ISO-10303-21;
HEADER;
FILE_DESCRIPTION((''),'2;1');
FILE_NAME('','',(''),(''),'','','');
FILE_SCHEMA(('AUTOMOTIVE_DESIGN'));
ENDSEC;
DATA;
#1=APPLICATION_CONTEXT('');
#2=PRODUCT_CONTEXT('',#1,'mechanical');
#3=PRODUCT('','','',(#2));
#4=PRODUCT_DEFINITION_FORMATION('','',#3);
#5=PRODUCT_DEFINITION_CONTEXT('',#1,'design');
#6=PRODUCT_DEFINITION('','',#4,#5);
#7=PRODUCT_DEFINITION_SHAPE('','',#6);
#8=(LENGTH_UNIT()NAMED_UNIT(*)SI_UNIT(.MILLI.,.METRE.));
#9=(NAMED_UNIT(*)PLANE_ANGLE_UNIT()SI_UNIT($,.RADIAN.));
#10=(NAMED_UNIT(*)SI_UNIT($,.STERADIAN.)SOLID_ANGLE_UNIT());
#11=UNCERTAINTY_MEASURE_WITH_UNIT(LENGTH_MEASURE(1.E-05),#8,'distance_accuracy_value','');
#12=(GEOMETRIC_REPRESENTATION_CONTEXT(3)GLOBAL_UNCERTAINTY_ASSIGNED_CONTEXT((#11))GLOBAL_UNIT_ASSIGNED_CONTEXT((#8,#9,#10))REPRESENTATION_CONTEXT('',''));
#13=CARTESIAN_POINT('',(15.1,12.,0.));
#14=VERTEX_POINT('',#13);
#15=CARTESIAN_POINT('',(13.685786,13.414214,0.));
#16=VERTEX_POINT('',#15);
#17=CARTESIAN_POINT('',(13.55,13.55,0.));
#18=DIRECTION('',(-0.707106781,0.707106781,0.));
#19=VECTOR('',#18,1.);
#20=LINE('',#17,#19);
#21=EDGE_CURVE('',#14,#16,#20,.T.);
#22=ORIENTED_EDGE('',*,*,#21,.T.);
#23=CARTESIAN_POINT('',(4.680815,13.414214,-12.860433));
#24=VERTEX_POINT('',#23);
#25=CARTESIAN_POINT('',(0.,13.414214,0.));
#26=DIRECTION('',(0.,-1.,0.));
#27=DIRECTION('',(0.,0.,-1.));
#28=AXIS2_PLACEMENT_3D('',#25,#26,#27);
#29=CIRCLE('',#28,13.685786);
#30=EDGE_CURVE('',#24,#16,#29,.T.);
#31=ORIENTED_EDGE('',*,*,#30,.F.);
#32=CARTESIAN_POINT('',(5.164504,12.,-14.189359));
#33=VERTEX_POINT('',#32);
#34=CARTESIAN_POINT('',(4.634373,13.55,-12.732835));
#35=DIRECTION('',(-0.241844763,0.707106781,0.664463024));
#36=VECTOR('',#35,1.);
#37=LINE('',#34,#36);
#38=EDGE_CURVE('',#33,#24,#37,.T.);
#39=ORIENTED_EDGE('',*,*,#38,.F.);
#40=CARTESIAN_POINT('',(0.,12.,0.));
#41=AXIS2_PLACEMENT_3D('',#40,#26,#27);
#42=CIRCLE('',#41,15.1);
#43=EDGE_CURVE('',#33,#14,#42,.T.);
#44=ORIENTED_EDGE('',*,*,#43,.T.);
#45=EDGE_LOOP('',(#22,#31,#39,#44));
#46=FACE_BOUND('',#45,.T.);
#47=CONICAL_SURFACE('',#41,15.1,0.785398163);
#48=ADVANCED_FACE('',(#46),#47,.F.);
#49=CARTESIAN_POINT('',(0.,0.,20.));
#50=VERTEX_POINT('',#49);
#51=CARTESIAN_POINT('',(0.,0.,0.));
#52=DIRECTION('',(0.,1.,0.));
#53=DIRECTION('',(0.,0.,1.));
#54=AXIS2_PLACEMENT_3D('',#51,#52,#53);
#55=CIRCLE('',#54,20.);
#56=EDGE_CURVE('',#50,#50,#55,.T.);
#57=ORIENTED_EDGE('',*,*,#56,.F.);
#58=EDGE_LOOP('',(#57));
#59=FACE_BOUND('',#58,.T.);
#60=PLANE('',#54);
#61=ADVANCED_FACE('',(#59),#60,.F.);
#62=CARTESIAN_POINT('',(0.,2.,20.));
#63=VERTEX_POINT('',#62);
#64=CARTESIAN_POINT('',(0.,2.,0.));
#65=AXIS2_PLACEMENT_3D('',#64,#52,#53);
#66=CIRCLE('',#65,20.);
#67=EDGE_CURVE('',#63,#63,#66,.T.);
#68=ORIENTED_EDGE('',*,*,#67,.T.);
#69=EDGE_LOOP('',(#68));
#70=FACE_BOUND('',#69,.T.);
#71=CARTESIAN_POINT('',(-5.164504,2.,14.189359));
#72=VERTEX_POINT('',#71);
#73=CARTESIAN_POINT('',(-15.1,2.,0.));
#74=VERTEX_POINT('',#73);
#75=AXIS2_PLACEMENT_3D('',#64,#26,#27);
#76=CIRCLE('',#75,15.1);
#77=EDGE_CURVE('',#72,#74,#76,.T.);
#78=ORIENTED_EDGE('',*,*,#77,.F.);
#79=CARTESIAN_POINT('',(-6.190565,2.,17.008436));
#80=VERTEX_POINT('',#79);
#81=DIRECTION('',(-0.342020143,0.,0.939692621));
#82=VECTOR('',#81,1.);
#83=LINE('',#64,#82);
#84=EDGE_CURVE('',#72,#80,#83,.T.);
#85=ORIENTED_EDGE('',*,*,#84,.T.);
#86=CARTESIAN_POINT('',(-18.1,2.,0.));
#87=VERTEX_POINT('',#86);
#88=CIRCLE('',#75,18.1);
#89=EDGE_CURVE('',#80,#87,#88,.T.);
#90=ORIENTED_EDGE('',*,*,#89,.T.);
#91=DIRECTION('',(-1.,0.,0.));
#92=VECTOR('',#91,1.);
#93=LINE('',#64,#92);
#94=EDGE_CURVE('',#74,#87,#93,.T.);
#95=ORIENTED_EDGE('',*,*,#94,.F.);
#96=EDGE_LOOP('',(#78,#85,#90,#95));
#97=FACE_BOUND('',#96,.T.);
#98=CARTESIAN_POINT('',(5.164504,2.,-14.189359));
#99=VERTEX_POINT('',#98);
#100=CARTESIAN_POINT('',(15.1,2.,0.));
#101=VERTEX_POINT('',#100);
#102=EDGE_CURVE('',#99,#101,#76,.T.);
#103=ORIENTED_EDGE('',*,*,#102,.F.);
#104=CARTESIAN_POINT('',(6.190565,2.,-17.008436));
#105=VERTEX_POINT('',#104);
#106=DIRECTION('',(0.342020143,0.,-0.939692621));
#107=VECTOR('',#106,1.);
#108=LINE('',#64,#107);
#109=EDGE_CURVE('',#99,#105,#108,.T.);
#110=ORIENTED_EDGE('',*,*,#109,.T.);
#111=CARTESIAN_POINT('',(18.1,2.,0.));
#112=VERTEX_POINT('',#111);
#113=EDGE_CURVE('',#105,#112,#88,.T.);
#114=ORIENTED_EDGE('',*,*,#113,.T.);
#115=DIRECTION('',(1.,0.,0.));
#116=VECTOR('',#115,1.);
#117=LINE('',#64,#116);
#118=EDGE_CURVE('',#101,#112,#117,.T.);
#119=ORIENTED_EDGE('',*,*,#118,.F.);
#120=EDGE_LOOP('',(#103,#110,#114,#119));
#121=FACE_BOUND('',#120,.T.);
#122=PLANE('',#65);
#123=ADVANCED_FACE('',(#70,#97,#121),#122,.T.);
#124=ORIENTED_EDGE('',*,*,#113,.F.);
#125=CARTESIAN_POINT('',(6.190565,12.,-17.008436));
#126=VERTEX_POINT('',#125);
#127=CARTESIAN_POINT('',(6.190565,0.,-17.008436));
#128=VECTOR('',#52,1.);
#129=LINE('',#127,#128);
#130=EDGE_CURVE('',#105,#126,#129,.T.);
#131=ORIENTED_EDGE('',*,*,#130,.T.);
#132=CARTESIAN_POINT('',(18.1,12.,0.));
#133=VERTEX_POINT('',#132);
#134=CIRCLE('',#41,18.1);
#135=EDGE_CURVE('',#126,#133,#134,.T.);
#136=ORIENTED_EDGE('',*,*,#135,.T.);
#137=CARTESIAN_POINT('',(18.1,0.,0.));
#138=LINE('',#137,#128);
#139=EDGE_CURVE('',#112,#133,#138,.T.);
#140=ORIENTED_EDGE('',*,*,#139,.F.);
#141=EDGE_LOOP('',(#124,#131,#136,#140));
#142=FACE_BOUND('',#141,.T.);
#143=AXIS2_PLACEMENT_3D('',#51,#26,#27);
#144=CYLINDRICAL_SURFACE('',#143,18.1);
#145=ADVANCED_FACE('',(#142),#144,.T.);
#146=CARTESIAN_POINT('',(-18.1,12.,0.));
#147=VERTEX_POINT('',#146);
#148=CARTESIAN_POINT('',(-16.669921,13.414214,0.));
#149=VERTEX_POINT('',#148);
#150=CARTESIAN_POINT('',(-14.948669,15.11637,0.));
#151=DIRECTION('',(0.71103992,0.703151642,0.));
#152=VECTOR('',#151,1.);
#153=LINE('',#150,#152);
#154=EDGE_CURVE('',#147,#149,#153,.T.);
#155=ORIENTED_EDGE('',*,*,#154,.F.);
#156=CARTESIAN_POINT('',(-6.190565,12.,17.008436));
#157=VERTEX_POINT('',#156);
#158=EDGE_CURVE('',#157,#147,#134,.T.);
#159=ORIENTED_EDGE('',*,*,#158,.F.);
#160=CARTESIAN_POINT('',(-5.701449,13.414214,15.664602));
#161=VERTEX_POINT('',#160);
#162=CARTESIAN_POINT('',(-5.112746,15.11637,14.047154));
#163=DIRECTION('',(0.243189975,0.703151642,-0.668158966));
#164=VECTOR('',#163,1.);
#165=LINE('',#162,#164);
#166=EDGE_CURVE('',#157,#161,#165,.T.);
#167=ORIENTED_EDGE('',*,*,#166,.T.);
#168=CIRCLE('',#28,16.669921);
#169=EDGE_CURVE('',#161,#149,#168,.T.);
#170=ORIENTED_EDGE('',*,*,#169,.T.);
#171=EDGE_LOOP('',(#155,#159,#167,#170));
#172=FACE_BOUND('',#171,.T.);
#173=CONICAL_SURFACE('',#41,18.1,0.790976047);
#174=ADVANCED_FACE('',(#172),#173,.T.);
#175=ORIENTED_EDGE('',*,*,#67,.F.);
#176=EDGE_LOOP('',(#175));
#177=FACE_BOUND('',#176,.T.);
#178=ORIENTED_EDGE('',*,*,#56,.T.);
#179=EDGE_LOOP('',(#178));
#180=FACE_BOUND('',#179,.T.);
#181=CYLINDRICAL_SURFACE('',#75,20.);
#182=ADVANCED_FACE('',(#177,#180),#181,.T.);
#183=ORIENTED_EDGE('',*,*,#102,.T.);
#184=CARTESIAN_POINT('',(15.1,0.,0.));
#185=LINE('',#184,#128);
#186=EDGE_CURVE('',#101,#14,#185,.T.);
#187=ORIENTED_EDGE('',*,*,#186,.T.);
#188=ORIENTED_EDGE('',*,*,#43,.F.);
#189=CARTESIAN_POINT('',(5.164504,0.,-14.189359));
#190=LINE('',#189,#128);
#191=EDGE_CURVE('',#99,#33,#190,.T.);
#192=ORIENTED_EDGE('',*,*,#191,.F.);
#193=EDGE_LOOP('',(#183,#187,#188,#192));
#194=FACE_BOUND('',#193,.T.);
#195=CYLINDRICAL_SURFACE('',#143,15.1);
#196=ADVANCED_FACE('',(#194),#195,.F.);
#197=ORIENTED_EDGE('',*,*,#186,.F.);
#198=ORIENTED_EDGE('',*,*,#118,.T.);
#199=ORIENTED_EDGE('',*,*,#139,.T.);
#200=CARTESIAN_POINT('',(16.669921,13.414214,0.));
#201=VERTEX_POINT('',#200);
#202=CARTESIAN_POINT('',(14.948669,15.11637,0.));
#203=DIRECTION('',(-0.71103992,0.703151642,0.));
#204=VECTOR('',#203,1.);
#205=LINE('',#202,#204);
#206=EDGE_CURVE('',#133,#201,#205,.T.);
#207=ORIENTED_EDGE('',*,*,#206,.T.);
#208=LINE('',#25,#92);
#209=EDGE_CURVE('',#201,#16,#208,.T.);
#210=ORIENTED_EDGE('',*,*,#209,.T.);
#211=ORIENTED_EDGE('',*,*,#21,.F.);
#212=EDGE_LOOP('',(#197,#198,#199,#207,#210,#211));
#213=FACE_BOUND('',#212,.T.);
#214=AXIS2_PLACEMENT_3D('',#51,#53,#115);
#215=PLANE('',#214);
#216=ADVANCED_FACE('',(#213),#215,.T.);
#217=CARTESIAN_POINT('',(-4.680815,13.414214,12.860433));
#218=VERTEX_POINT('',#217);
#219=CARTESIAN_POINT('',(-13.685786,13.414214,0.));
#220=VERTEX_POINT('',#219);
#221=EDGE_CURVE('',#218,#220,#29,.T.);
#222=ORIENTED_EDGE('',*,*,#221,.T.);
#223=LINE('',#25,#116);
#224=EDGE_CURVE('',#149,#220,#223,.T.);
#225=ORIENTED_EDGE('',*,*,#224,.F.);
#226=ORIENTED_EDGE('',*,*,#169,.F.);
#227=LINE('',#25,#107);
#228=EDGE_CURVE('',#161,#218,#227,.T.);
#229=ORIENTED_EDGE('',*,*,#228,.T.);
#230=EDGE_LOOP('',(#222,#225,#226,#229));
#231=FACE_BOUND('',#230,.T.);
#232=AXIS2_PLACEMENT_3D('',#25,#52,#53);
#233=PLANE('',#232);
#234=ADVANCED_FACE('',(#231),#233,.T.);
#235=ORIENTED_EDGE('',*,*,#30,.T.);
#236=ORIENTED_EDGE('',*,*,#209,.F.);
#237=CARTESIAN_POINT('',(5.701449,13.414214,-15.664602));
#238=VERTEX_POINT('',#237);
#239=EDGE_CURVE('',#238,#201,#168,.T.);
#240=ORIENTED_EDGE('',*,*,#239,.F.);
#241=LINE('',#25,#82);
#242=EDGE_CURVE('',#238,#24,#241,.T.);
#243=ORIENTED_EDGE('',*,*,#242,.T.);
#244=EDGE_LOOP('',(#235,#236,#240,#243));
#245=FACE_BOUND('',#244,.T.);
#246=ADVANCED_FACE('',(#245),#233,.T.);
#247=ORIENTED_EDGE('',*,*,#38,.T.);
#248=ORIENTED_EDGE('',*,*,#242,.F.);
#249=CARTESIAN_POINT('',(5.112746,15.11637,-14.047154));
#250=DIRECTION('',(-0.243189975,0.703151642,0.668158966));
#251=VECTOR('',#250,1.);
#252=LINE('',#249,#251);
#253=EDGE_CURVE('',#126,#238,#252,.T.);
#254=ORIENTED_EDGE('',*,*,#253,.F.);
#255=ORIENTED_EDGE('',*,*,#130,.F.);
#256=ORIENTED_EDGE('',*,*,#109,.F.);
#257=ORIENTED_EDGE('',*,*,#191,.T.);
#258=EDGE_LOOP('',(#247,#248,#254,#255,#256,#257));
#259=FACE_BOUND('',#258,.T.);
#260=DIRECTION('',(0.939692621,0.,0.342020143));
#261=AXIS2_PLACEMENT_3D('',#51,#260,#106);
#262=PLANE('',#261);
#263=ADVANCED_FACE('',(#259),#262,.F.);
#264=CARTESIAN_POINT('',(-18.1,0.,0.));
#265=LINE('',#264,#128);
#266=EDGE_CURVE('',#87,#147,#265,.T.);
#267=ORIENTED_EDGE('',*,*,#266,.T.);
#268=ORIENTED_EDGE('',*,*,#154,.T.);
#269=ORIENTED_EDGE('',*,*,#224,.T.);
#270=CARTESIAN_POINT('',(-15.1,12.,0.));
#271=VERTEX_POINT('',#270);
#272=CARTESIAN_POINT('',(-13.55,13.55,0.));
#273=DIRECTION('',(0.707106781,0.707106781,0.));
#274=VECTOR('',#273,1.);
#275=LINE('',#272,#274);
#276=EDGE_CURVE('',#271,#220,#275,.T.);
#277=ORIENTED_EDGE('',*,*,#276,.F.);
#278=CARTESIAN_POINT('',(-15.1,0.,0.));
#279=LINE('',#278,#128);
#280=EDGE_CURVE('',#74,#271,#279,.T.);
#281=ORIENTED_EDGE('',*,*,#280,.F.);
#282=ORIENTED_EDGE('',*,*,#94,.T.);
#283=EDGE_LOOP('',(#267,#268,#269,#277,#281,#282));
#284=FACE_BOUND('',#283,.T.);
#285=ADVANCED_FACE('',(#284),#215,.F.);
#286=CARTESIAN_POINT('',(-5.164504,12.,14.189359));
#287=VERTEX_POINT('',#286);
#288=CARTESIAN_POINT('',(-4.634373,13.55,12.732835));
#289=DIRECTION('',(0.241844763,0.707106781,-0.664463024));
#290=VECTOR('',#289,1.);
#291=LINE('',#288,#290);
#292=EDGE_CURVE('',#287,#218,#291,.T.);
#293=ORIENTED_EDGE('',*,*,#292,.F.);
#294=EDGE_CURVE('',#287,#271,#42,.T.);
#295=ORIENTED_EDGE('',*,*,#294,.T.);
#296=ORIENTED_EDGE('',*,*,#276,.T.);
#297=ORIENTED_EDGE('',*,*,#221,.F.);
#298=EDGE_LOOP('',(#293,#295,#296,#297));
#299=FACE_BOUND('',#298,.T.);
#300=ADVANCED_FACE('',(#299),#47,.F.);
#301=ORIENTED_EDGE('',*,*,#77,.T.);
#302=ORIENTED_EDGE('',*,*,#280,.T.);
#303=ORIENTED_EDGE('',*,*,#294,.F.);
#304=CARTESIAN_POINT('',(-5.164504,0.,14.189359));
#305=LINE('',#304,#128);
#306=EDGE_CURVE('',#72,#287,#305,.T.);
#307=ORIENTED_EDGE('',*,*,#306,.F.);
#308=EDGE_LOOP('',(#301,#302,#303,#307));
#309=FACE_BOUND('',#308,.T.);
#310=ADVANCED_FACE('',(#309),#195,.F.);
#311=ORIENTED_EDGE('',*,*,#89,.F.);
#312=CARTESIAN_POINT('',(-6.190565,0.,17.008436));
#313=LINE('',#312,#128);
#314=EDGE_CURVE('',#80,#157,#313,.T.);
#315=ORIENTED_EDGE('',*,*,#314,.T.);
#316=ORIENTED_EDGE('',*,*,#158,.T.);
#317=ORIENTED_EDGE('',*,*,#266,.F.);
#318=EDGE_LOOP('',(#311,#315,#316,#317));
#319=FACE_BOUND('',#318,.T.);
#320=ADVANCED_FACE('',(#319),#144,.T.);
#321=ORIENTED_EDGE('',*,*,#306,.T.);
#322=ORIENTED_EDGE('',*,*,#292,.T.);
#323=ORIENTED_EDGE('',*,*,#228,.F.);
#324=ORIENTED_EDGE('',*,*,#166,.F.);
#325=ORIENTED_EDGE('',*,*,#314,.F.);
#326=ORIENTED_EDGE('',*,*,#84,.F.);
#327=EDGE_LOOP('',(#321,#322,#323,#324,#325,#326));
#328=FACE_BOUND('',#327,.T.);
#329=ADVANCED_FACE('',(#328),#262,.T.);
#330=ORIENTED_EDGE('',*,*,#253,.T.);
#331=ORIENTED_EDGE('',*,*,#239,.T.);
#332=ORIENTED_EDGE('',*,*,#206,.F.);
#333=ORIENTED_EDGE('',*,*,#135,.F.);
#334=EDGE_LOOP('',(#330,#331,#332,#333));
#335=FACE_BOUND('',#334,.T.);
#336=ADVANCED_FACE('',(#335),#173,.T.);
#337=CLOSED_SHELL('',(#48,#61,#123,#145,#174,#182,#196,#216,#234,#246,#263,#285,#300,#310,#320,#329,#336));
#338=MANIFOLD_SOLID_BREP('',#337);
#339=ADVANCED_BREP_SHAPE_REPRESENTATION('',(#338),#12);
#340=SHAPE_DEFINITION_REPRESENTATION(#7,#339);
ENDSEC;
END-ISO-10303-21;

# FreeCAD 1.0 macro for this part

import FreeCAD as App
import Part
import Sketcher

V = App.Vector
Q = App.Units.Quantity

doc = App.newDocument("Part")
body = doc.addObject("PartDesign::Body", "Body")

sketch1 = doc.addObject("Sketcher::SketchObject", "Sketch")
body.addObject(sketch1)
sketch1.AttachmentSupport = (doc.XZ_Plane, [""])
sketch1.MapMode = "FlatFace"
sketch1.addGeometry(Part.Circle(V(0, 0, 0), V(0, 0, 1), 20), False)
sketch1.addConstraint(Sketcher.Constraint("Coincident", 0, 3, -1, 1))
sketch1.addConstraint(Sketcher.Constraint("Diameter", 0, Q("40 mm")))
pad1 = doc.addObject("PartDesign::Pad", "Pad")
body.addObject(pad1)
pad1.Profile = sketch1
pad1.Length = 2
pad1.Reversed = True

sketch2 = doc.addObject("Sketcher::SketchObject", "Sketch001")
body.addObject(sketch2)
sketch2.AttachmentSupport = (doc.XY_Plane, [""])
sketch2.MapMode = "FlatFace"
sketch2.addGeometry(Part.LineSegment(V(18.1, 12, 0), V(16.7, 13.4, 0)), False)
sketch2.addGeometry(Part.LineSegment(V(16.7, 13.4, 0), V(13.7, 13.4, 0)), False)
sketch2.addGeometry(Part.LineSegment(V(13.7, 13.4, 0), V(15.1, 12, 0)), False)
sketch2.addGeometry(Part.LineSegment(V(15.1, 12, 0), V(15.1, 2, 0)), False)
sketch2.addGeometry(Part.LineSegment(V(15.1, 2, 0), V(18.1, 2, 0)), False)
sketch2.addGeometry(Part.LineSegment(V(18.1, 2, 0), V(18.1, 12, 0)), False)
sketch2.addGeometry(Part.LineSegment(V(-15.1, 2, 0), V(-15.1, 12, 0)), False)
sketch2.addGeometry(Part.LineSegment(V(-15.1, 12, 0), V(-13.7, 13.4, 0)), False)
sketch2.addGeometry(Part.LineSegment(V(-13.7, 13.4, 0), V(-16.7, 13.4, 0)), False)
sketch2.addGeometry(Part.LineSegment(V(-16.7, 13.4, 0), V(-18.1, 12, 0)), False)
sketch2.addGeometry(Part.LineSegment(V(-18.1, 12, 0), V(-18.1, 2, 0)), False)
sketch2.addGeometry(Part.LineSegment(V(-18.1, 2, 0), V(-15.1, 2, 0)), False)
sketch2.addConstraint(Sketcher.Constraint("Coincident", 0, 2, 1, 1))
sketch2.addConstraint(Sketcher.Constraint("Coincident", 1, 2, 2, 1))
sketch2.addConstraint(Sketcher.Constraint("Coincident", 2, 2, 3, 1))
sketch2.addConstraint(Sketcher.Constraint("Coincident", 3, 2, 4, 1))
sketch2.addConstraint(Sketcher.Constraint("Coincident", 4, 2, 5, 1))
sketch2.addConstraint(Sketcher.Constraint("Coincident", 5, 2, 0, 1))
sketch2.addConstraint(Sketcher.Constraint("Coincident", 6, 2, 7, 1))
sketch2.addConstraint(Sketcher.Constraint("Coincident", 7, 2, 8, 1))
sketch2.addConstraint(Sketcher.Constraint("Coincident", 8, 2, 9, 1))
sketch2.addConstraint(Sketcher.Constraint("Coincident", 9, 2, 10, 1))
sketch2.addConstraint(Sketcher.Constraint("Coincident", 10, 2, 11, 1))
sketch2.addConstraint(Sketcher.Constraint("Coincident", 11, 2, 6, 1))
sketch2.addConstraint(Sketcher.Constraint("Horizontal", 1))
sketch2.addConstraint(Sketcher.Constraint("Vertical", 3))
sketch2.addConstraint(Sketcher.Constraint("Horizontal", 4))
sketch2.addConstraint(Sketcher.Constraint("Vertical", 5))
sketch2.addConstraint(Sketcher.Constraint("Vertical", 6))
sketch2.addConstraint(Sketcher.Constraint("Horizontal", 8))
sketch2.addConstraint(Sketcher.Constraint("Vertical", 10))
sketch2.addConstraint(Sketcher.Constraint("Horizontal", 11))
sketch2.addConstraint(Sketcher.Constraint("Symmetric", 2, 2, 6, 2, -2))
sketch2.addConstraint(Sketcher.Constraint("Symmetric", 1, 2, 7, 2, -2))
sketch2.addConstraint(Sketcher.Constraint("Symmetric", 5, 2, 9, 2, -2))
sketch2.addConstraint(Sketcher.Constraint("Perpendicular", 2, 7))
sketch2.addConstraint(Sketcher.Constraint("Horizontal", 2, 2, 5, 2))
sketch2.addConstraint(Sketcher.Constraint("Horizontal", 4, 2, 10, 2))
sketch2.addConstraint(Sketcher.Constraint("Equal", 1, 8))
sketch2.addConstraint(Sketcher.Constraint("DistanceX", 4, 1, 4, 2, Q("3 mm")))
sketch2.addConstraint(Sketcher.Constraint("DistanceY", 3, 2, 3, 1, Q("10 mm")))
sketch2.addConstraint(Sketcher.Constraint("Distance", 2, Q("2 mm")))
sketch2.addConstraint(Sketcher.Constraint("DistanceY", -1, 1, 2, 2, Q("12 mm")))
sketch2.addConstraint(Sketcher.Constraint("DistanceX", -1, 1, 2, 2, Q("15.1 mm")))
sketch2.addConstraint(Sketcher.Constraint("Distance", 0, Q("2.01125 mm")))
revolution = doc.addObject("PartDesign::Revolution", "Revolution")
body.addObject(revolution)
revolution.Profile = sketch2
revolution.ReferenceAxis = (sketch2, ["V_Axis"])
revolution.Angle = 70

doc.recompute()
